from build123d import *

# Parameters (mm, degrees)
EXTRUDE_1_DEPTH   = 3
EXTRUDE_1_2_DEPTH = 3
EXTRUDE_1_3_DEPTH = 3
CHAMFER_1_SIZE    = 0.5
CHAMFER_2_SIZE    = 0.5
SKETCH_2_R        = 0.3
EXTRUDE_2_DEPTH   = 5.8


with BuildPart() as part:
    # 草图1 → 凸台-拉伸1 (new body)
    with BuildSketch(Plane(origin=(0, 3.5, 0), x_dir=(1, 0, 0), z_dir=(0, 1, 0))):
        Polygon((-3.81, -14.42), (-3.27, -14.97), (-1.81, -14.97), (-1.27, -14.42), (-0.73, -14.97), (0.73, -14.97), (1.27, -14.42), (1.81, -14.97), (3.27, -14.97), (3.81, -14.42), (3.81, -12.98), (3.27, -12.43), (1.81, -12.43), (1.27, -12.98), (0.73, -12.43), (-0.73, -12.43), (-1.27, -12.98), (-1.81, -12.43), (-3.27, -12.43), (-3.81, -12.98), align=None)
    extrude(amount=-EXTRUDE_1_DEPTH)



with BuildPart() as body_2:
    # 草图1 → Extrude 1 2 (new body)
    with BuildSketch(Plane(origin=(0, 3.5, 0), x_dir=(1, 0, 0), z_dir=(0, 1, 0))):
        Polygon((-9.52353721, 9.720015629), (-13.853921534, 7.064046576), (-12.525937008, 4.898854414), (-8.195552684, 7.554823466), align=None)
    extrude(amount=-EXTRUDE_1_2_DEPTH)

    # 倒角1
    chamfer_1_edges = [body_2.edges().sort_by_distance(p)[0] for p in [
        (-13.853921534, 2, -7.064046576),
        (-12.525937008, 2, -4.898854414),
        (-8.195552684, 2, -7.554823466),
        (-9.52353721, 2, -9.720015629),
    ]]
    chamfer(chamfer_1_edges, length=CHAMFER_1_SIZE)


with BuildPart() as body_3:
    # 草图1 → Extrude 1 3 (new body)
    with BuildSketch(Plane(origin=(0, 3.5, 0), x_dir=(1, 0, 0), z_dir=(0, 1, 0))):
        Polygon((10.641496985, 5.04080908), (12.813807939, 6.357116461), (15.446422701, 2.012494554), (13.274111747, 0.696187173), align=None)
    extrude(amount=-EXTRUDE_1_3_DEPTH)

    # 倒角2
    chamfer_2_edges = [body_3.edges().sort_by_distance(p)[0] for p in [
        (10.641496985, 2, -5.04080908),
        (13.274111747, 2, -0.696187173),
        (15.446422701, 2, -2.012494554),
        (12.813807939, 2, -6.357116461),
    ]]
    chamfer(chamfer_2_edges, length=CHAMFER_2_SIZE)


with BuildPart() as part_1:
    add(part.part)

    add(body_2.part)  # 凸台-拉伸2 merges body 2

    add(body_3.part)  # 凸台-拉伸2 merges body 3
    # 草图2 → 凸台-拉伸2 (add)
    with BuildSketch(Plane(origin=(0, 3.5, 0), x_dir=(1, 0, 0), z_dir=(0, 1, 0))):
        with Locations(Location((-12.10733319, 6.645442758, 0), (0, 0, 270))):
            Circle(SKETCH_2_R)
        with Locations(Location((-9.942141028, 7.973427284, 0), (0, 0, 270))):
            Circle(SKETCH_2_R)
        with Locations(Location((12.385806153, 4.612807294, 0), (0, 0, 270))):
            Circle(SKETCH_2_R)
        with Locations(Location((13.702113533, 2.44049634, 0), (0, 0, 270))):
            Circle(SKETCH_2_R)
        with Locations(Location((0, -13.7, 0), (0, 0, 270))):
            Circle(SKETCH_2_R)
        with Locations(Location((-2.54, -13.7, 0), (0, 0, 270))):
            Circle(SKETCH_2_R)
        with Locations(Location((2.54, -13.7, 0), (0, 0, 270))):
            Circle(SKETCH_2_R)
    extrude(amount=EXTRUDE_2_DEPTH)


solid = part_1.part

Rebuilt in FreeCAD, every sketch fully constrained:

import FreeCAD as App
import Part
import Sketcher
from FreeCAD import Vector
Q = App.Units.Quantity


def edges_at(feature, points):
    """Names of the edges that pass closest to the given points."""
    edges = feature.Shape.Edges
    near = lambda p: min(range(len(edges)), key=lambda i: edges[i].distToShape(Part.Vertex(*p))[0])
    return sorted({f"Edge{near(p) + 1}" for p in points})

doc = App.newDocument("Part")
body = doc.addObject("PartDesign::Body", "Body")

sketch1 = body.newObject("Sketcher::SketchObject", "Sketch")
sketch1.AttachmentSupport = (doc.getObject("XZ_Plane"), [""])
sketch1.MapMode = "FlatFace"
sketch1.AttachmentOffset = App.Placement(Vector(0, 0, -3.5), App.Rotation())
sketch1.addGeometry(Part.LineSegment(Vector(-3.8, 14.4, 0), Vector(-3.3, 15, 0)), False)
sketch1.addGeometry(Part.LineSegment(Vector(-3.3, 15, 0), Vector(-1.8, 15, 0)), False)
sketch1.addGeometry(Part.LineSegment(Vector(-1.8, 15, 0), Vector(-1.3, 14.4, 0)), False)
sketch1.addGeometry(Part.LineSegment(Vector(-1.3, 14.4, 0), Vector(-0.7, 15, 0)), False)
sketch1.addGeometry(Part.LineSegment(Vector(-0.7, 15, 0), Vector(0.7, 15, 0)), False)
sketch1.addGeometry(Part.LineSegment(Vector(0.7, 15, 0), Vector(1.3, 14.4, 0)), False)
sketch1.addGeometry(Part.LineSegment(Vector(1.3, 14.4, 0), Vector(1.8, 15, 0)), False)
sketch1.addGeometry(Part.LineSegment(Vector(1.8, 15, 0), Vector(3.3, 15, 0)), False)
sketch1.addGeometry(Part.LineSegment(Vector(3.3, 15, 0), Vector(3.8, 14.4, 0)), False)
sketch1.addGeometry(Part.LineSegment(Vector(3.8, 14.4, 0), Vector(3.8, 13, 0)), False)
sketch1.addGeometry(Part.LineSegment(Vector(3.8, 13, 0), Vector(3.3, 12.4, 0)), False)
sketch1.addGeometry(Part.LineSegment(Vector(3.3, 12.4, 0), Vector(1.8, 12.4, 0)), False)
sketch1.addGeometry(Part.LineSegment(Vector(1.8, 12.4, 0), Vector(1.3, 13, 0)), False)
sketch1.addGeometry(Part.LineSegment(Vector(1.3, 13, 0), Vector(0.7, 12.4, 0)), False)
sketch1.addGeometry(Part.LineSegment(Vector(0.7, 12.4, 0), Vector(-0.7, 12.4, 0)), False)
sketch1.addGeometry(Part.LineSegment(Vector(-0.7, 12.4, 0), Vector(-1.3, 13, 0)), False)
sketch1.addGeometry(Part.LineSegment(Vector(-1.3, 13, 0), Vector(-1.8, 12.4, 0)), False)
sketch1.addGeometry(Part.LineSegment(Vector(-1.8, 12.4, 0), Vector(-3.3, 12.4, 0)), False)
sketch1.addGeometry(Part.LineSegment(Vector(-3.3, 12.4, 0), Vector(-3.8, 13, 0)), False)
sketch1.addGeometry(Part.LineSegment(Vector(-3.8, 13, 0), Vector(-3.8, 14.4, 0)), False)
sketch1.addConstraint(Sketcher.Constraint("Coincident", 0, 2, 1, 1))
sketch1.addConstraint(Sketcher.Constraint("Coincident", 1, 2, 2, 1))
sketch1.addConstraint(Sketcher.Constraint("Coincident", 2, 2, 3, 1))
sketch1.addConstraint(Sketcher.Constraint("Coincident", 3, 2, 4, 1))
sketch1.addConstraint(Sketcher.Constraint("Coincident", 4, 2, 5, 1))
sketch1.addConstraint(Sketcher.Constraint("Coincident", 5, 2, 6, 1))
sketch1.addConstraint(Sketcher.Constraint("Coincident", 6, 2, 7, 1))
sketch1.addConstraint(Sketcher.Constraint("Coincident", 7, 2, 8, 1))
sketch1.addConstraint(Sketcher.Constraint("Coincident", 8, 2, 9, 1))
sketch1.addConstraint(Sketcher.Constraint("Coincident", 9, 2, 10, 1))
sketch1.addConstraint(Sketcher.Constraint("Coincident", 10, 2, 11, 1))
sketch1.addConstraint(Sketcher.Constraint("Coincident", 11, 2, 12, 1))
sketch1.addConstraint(Sketcher.Constraint("Coincident", 12, 2, 13, 1))
sketch1.addConstraint(Sketcher.Constraint("Coincident", 13, 2, 14, 1))
sketch1.addConstraint(Sketcher.Constraint("Coincident", 14, 2, 15, 1))
sketch1.addConstraint(Sketcher.Constraint("Coincident", 15, 2, 16, 1))
sketch1.addConstraint(Sketcher.Constraint("Coincident", 16, 2, 17, 1))
sketch1.addConstraint(Sketcher.Constraint("Coincident", 17, 2, 18, 1))
sketch1.addConstraint(Sketcher.Constraint("Coincident", 18, 2, 19, 1))
sketch1.addConstraint(Sketcher.Constraint("Coincident", 19, 2, 0, 1))
sketch1.addConstraint(Sketcher.Constraint("Horizontal", 1))
sketch1.addConstraint(Sketcher.Constraint("Horizontal", 4))
sketch1.addConstraint(Sketcher.Constraint("Horizontal", 7))
sketch1.addConstraint(Sketcher.Constraint("Vertical", 9))
sketch1.addConstraint(Sketcher.Constraint("Horizontal", 11))
sketch1.addConstraint(Sketcher.Constraint("Horizontal", 14))
sketch1.addConstraint(Sketcher.Constraint("Horizontal", 17))
sketch1.addConstraint(Sketcher.Constraint("Vertical", 19))
sketch1.addConstraint(Sketcher.Constraint("Symmetric", 2, 2, 5, 2, -2))
sketch1.addConstraint(Sketcher.Constraint("Symmetric", 1, 2, 6, 2, -2))
sketch1.addConstraint(Sketcher.Constraint("Symmetric", 12, 2, 15, 2, -2))
sketch1.addConstraint(Sketcher.Constraint("Symmetric", 11, 2, 16, 2, -2))
sketch1.addConstraint(Sketcher.Constraint("Symmetric", 9, 2, 18, 2, -2))
sketch1.addConstraint(Sketcher.Constraint("Parallel", 0, 3))
sketch1.addConstraint(Sketcher.Constraint("Parallel", 2, 5))
sketch1.addConstraint(Sketcher.Constraint("Parallel", 3, 6))
sketch1.addConstraint(Sketcher.Constraint("Parallel", 5, 8))
sketch1.addConstraint(Sketcher.Constraint("Parallel", 6, 10))
sketch1.addConstraint(Sketcher.Constraint("Parallel", 8, 12))
sketch1.addConstraint(Sketcher.Constraint("Parallel", 10, 13))
sketch1.addConstraint(Sketcher.Constraint("Parallel", 12, 15))
sketch1.addConstraint(Sketcher.Constraint("Parallel", 15, 18))
sketch1.addConstraint(Sketcher.Constraint("Horizontal", 1, 2, 3, 2))
sketch1.addConstraint(Sketcher.Constraint("Horizontal", 5, 2, 8, 2))
sketch1.addConstraint(Sketcher.Constraint("Horizontal", 9, 2, 12, 2))
sketch1.addConstraint(Sketcher.Constraint("Horizontal", 11, 2, 13, 2))
sketch1.addConstraint(Sketcher.Constraint("Horizontal", 8, 2, 19, 2))
sketch1.addConstraint(Sketcher.Constraint("Vertical", 7, 2, 10, 2))
sketch1.addConstraint(Sketcher.Constraint("Vertical", 6, 2, 11, 2))
sketch1.addConstraint(Sketcher.Constraint("Equal", 1, 4))
sketch1.addConstraint(Sketcher.Constraint("DistanceX", 0, 2, 2, 2, Q("2 mm")))
sketch1.addConstraint(Sketcher.Constraint("DistanceX", 1, 1, 1, 2, Q("1.46 mm")))
sketch1.addConstraint(Sketcher.Constraint("DistanceY", 9, 2, 9, 1, Q("1.44 mm")))
sketch1.addConstraint(Sketcher.Constraint("DistanceY", -1, 1, 0, 2, Q("14.97 mm")))
sketch1.addConstraint(Sketcher.Constraint("DistanceY", -1, 1, 2, 2, Q("14.42 mm")))
pad1 = body.newObject("PartDesign::Pad", "Pad")
pad1.Profile = sketch1
pad1.Length = 3
body2 = doc.addObject("PartDesign::Body", "Body001")

sketch2 = body2.newObject("Sketcher::SketchObject", "Sketch001")
sketch2.AttachmentSupport = (doc.getObject("XZ_Plane001"), [""])
sketch2.MapMode = "FlatFace"
sketch2.AttachmentOffset = App.Placement(Vector(0, 0, -3.5), App.Rotation())
sketch2.addGeometry(Part.LineSegment(Vector(-9.5, -9.7, 0), Vector(-13.9, -7.1, 0)), False)
sketch2.addGeometry(Part.LineSegment(Vector(-13.9, -7.1, 0), Vector(-12.5, -4.9, 0)), False)
sketch2.addGeometry(Part.LineSegment(Vector(-12.5, -4.9, 0), Vector(-8.2, -7.6, 0)), False)
sketch2.addGeometry(Part.LineSegment(Vector(-8.2, -7.6, 0), Vector(-9.5, -9.7, 0)), False)
sketch2.addConstraint(Sketcher.Constraint("Coincident", 0, 2, 1, 1))
sketch2.addConstraint(Sketcher.Constraint("Coincident", 1, 2, 2, 1))
sketch2.addConstraint(Sketcher.Constraint("Coincident", 2, 2, 3, 1))
sketch2.addConstraint(Sketcher.Constraint("Coincident", 3, 2, 0, 1))
sketch2.addConstraint(Sketcher.Constraint("Perpendicular", 0, 1))
sketch2.addConstraint(Sketcher.Constraint("Perpendicular", 1, 2))
sketch2.addConstraint(Sketcher.Constraint("Perpendicular", 2, 3))
sketch2.addConstraint(Sketcher.Constraint("Distance", 0, Q("5.08 mm")))
sketch2.addConstraint(Sketcher.Constraint("Distance", 1, Q("2.54 mm")))
sketch2.addConstraint(Sketcher.Constraint("DistanceX", 1, 2, 3, 2, Q("3.0024 mm")))
sketch2.addConstraint(Sketcher.Constraint("DistanceX", 0, 2, -1, 1, Q("13.853922 mm")))
sketch2.addConstraint(Sketcher.Constraint("DistanceY", 0, 2, -1, 1, Q("7.064047 mm")))
pad2 = body2.newObject("PartDesign::Pad", "Pad001")
pad2.Profile = sketch2
pad2.Length = 3
doc.recompute()

chamfer = body2.newObject("PartDesign::Chamfer", "Chamfer")
chamfer.Base = (pad2, edges_at(pad2, [
    (-13.854, 2, -7.064),
    (-12.526, 2, -4.899),
    (-8.196, 2, -7.555),
    (-9.524, 2, -9.72),
]))
chamfer.Size = 0.5
body3 = doc.addObject("PartDesign::Body", "Body002")

sketch3 = body3.newObject("Sketcher::SketchObject", "Sketch002")
sketch3.AttachmentSupport = (doc.getObject("XZ_Plane002"), [""])
sketch3.MapMode = "FlatFace"
sketch3.AttachmentOffset = App.Placement(Vector(0, 0, -3.5), App.Rotation())
sketch3.addGeometry(Part.LineSegment(Vector(12.8, -6.4, 0), Vector(10.6, -5, 0)), False)
sketch3.addGeometry(Part.LineSegment(Vector(10.6, -5, 0), Vector(13.3, -0.7, 0)), False)
sketch3.addGeometry(Part.LineSegment(Vector(13.3, -0.7, 0), Vector(15.4, -2, 0)), False)
sketch3.addGeometry(Part.LineSegment(Vector(15.4, -2, 0), Vector(12.8, -6.4, 0)), False)
sketch3.addConstraint(Sketcher.Constraint("Coincident", 0, 2, 1, 1))
sketch3.addConstraint(Sketcher.Constraint("Coincident", 1, 2, 2, 1))
sketch3.addConstraint(Sketcher.Constraint("Coincident", 2, 2, 3, 1))
sketch3.addConstraint(Sketcher.Constraint("Coincident", 3, 2, 0, 1))
sketch3.addConstraint(Sketcher.Constraint("Perpendicular", 0, 1))
sketch3.addConstraint(Sketcher.Constraint("Perpendicular", 1, 2))
sketch3.addConstraint(Sketcher.Constraint("Perpendicular", 2, 3))
sketch3.addConstraint(Sketcher.Constraint("Distance", 0, Q("2.54 mm")))
sketch3.addConstraint(Sketcher.Constraint("Distance", 1, Q("5.08 mm")))
sketch3.addConstraint(Sketcher.Constraint("DistanceY", 0, 2, -1, 1, Q("5.040809 mm")))
sketch3.addConstraint(Sketcher.Constraint("DistanceX", -1, 1, 1, 2, Q("13.274112 mm")))
sketch3.addConstraint(Sketcher.Constraint("DistanceY", 0, 2, 1, 2, Q("4.344622 mm")))
pad3 = body3.newObject("PartDesign::Pad", "Pad002")
pad3.Profile = sketch3
pad3.Length = 3
doc.recompute()

chamfer2 = body3.newObject("PartDesign::Chamfer", "Chamfer001")
chamfer2.Base = (pad3, edges_at(pad3, [
    (10.641, 2, -5.041),
    (13.274, 2, -0.696),
    (15.446, 2, -2.012),
    (12.814, 2, -6.357),
]))
chamfer2.Size = 0.5
body.AllowCompound = True
doc.recompute()

boolean = body.newObject("PartDesign::Boolean", "Boolean")
boolean.Type = "Fuse"
boolean.addObjects([body2])
doc.recompute()

boolean2 = body.newObject("PartDesign::Boolean", "Boolean001")
boolean2.Type = "Fuse"
boolean2.addObjects([body3])

sketch4 = body.newObject("Sketcher::SketchObject", "Sketch003")
sketch4.AttachmentSupport = (doc.getObject("XZ_Plane"), [""])
sketch4.MapMode = "FlatFace"
sketch4.AttachmentOffset = App.Placement(Vector(0, 0, -3.5), App.Rotation())
sketch4.addGeometry(Part.Circle(Vector(-12.11, -6.65, 0), Vector(0, 0, 1), 0.3), False)
sketch4.addGeometry(Part.Circle(Vector(-9.94, -7.97, 0), Vector(0, 0, 1), 0.3), False)
sketch4.addGeometry(Part.Circle(Vector(12.39, -4.61, 0), Vector(0, 0, 1), 0.3), False)
sketch4.addGeometry(Part.Circle(Vector(13.7, -2.44, 0), Vector(0, 0, 1), 0.3), False)
sketch4.addGeometry(Part.Circle(Vector(0, 13.7, 0), Vector(0, 0, 1), 0.3), False)
sketch4.addGeometry(Part.Circle(Vector(-2.54, 13.7, 0), Vector(0, 0, 1), 0.3), False)
sketch4.addGeometry(Part.Circle(Vector(2.54, 13.7, 0), Vector(0, 0, 1), 0.3), False)
sketch4.addConstraint(Sketcher.Constraint("Equal", 0, 1))
sketch4.addConstraint(Sketcher.Constraint("Equal", 1, 2))
sketch4.addConstraint(Sketcher.Constraint("Equal", 2, 3))
sketch4.addConstraint(Sketcher.Constraint("Equal", 3, 4))
sketch4.addConstraint(Sketcher.Constraint("Equal", 4, 5))
sketch4.addConstraint(Sketcher.Constraint("Equal", 5, 6))
sketch4.addConstraint(Sketcher.Constraint("Symmetric", 5, 3, 6, 3, -2))
sketch4.addConstraint(Sketcher.Constraint("PointOnObject", 4, 3, -2))
sketch4.addConstraint(Sketcher.Constraint("Horizontal", 4, 3, 5, 3))
sketch4.addConstraint(Sketcher.Constraint("Diameter", 0, Q("0.6 mm")))
sketch4.addConstraint(Sketcher.Constraint("DistanceY", -1, 1, 4, 3, Q("13.7 mm")))
sketch4.addConstraint(Sketcher.Constraint("DistanceX", 5, 3, -1, 1, Q("2.54 mm")))
sketch4.addConstraint(Sketcher.Constraint("DistanceX", 1, 3, -1, 1, Q("9.942141 mm")))
sketch4.addConstraint(Sketcher.Constraint("DistanceY", 1, 3, 2, 3, Q("3.36062 mm")))
sketch4.addConstraint(Sketcher.Constraint("DistanceX", 0, 3, 2, 3, Q("24.493139 mm")))
sketch4.addConstraint(Sketcher.Constraint("DistanceY", 2, 3, 3, 3, Q("2.172311 mm")))
sketch4.addConstraint(Sketcher.Constraint("DistanceX", 0, 3, -1, 1, Q("12.107333 mm")))
sketch4.addConstraint(Sketcher.Constraint("DistanceY", 0, 3, -1, 1, Q("6.645443 mm")))
sketch4.addConstraint(Sketcher.Constraint("DistanceY", 1, 3, -1, 1, Q("7.973427 mm")))
sketch4.addConstraint(Sketcher.Constraint("DistanceX", -1, 1, 3, 3, Q("13.702114 mm")))
pad4 = body.newObject("PartDesign::Pad", "Pad003")
pad4.Profile = sketch4
pad4.Length = 5.8
pad4.Reversed = True

doc.recompute()
